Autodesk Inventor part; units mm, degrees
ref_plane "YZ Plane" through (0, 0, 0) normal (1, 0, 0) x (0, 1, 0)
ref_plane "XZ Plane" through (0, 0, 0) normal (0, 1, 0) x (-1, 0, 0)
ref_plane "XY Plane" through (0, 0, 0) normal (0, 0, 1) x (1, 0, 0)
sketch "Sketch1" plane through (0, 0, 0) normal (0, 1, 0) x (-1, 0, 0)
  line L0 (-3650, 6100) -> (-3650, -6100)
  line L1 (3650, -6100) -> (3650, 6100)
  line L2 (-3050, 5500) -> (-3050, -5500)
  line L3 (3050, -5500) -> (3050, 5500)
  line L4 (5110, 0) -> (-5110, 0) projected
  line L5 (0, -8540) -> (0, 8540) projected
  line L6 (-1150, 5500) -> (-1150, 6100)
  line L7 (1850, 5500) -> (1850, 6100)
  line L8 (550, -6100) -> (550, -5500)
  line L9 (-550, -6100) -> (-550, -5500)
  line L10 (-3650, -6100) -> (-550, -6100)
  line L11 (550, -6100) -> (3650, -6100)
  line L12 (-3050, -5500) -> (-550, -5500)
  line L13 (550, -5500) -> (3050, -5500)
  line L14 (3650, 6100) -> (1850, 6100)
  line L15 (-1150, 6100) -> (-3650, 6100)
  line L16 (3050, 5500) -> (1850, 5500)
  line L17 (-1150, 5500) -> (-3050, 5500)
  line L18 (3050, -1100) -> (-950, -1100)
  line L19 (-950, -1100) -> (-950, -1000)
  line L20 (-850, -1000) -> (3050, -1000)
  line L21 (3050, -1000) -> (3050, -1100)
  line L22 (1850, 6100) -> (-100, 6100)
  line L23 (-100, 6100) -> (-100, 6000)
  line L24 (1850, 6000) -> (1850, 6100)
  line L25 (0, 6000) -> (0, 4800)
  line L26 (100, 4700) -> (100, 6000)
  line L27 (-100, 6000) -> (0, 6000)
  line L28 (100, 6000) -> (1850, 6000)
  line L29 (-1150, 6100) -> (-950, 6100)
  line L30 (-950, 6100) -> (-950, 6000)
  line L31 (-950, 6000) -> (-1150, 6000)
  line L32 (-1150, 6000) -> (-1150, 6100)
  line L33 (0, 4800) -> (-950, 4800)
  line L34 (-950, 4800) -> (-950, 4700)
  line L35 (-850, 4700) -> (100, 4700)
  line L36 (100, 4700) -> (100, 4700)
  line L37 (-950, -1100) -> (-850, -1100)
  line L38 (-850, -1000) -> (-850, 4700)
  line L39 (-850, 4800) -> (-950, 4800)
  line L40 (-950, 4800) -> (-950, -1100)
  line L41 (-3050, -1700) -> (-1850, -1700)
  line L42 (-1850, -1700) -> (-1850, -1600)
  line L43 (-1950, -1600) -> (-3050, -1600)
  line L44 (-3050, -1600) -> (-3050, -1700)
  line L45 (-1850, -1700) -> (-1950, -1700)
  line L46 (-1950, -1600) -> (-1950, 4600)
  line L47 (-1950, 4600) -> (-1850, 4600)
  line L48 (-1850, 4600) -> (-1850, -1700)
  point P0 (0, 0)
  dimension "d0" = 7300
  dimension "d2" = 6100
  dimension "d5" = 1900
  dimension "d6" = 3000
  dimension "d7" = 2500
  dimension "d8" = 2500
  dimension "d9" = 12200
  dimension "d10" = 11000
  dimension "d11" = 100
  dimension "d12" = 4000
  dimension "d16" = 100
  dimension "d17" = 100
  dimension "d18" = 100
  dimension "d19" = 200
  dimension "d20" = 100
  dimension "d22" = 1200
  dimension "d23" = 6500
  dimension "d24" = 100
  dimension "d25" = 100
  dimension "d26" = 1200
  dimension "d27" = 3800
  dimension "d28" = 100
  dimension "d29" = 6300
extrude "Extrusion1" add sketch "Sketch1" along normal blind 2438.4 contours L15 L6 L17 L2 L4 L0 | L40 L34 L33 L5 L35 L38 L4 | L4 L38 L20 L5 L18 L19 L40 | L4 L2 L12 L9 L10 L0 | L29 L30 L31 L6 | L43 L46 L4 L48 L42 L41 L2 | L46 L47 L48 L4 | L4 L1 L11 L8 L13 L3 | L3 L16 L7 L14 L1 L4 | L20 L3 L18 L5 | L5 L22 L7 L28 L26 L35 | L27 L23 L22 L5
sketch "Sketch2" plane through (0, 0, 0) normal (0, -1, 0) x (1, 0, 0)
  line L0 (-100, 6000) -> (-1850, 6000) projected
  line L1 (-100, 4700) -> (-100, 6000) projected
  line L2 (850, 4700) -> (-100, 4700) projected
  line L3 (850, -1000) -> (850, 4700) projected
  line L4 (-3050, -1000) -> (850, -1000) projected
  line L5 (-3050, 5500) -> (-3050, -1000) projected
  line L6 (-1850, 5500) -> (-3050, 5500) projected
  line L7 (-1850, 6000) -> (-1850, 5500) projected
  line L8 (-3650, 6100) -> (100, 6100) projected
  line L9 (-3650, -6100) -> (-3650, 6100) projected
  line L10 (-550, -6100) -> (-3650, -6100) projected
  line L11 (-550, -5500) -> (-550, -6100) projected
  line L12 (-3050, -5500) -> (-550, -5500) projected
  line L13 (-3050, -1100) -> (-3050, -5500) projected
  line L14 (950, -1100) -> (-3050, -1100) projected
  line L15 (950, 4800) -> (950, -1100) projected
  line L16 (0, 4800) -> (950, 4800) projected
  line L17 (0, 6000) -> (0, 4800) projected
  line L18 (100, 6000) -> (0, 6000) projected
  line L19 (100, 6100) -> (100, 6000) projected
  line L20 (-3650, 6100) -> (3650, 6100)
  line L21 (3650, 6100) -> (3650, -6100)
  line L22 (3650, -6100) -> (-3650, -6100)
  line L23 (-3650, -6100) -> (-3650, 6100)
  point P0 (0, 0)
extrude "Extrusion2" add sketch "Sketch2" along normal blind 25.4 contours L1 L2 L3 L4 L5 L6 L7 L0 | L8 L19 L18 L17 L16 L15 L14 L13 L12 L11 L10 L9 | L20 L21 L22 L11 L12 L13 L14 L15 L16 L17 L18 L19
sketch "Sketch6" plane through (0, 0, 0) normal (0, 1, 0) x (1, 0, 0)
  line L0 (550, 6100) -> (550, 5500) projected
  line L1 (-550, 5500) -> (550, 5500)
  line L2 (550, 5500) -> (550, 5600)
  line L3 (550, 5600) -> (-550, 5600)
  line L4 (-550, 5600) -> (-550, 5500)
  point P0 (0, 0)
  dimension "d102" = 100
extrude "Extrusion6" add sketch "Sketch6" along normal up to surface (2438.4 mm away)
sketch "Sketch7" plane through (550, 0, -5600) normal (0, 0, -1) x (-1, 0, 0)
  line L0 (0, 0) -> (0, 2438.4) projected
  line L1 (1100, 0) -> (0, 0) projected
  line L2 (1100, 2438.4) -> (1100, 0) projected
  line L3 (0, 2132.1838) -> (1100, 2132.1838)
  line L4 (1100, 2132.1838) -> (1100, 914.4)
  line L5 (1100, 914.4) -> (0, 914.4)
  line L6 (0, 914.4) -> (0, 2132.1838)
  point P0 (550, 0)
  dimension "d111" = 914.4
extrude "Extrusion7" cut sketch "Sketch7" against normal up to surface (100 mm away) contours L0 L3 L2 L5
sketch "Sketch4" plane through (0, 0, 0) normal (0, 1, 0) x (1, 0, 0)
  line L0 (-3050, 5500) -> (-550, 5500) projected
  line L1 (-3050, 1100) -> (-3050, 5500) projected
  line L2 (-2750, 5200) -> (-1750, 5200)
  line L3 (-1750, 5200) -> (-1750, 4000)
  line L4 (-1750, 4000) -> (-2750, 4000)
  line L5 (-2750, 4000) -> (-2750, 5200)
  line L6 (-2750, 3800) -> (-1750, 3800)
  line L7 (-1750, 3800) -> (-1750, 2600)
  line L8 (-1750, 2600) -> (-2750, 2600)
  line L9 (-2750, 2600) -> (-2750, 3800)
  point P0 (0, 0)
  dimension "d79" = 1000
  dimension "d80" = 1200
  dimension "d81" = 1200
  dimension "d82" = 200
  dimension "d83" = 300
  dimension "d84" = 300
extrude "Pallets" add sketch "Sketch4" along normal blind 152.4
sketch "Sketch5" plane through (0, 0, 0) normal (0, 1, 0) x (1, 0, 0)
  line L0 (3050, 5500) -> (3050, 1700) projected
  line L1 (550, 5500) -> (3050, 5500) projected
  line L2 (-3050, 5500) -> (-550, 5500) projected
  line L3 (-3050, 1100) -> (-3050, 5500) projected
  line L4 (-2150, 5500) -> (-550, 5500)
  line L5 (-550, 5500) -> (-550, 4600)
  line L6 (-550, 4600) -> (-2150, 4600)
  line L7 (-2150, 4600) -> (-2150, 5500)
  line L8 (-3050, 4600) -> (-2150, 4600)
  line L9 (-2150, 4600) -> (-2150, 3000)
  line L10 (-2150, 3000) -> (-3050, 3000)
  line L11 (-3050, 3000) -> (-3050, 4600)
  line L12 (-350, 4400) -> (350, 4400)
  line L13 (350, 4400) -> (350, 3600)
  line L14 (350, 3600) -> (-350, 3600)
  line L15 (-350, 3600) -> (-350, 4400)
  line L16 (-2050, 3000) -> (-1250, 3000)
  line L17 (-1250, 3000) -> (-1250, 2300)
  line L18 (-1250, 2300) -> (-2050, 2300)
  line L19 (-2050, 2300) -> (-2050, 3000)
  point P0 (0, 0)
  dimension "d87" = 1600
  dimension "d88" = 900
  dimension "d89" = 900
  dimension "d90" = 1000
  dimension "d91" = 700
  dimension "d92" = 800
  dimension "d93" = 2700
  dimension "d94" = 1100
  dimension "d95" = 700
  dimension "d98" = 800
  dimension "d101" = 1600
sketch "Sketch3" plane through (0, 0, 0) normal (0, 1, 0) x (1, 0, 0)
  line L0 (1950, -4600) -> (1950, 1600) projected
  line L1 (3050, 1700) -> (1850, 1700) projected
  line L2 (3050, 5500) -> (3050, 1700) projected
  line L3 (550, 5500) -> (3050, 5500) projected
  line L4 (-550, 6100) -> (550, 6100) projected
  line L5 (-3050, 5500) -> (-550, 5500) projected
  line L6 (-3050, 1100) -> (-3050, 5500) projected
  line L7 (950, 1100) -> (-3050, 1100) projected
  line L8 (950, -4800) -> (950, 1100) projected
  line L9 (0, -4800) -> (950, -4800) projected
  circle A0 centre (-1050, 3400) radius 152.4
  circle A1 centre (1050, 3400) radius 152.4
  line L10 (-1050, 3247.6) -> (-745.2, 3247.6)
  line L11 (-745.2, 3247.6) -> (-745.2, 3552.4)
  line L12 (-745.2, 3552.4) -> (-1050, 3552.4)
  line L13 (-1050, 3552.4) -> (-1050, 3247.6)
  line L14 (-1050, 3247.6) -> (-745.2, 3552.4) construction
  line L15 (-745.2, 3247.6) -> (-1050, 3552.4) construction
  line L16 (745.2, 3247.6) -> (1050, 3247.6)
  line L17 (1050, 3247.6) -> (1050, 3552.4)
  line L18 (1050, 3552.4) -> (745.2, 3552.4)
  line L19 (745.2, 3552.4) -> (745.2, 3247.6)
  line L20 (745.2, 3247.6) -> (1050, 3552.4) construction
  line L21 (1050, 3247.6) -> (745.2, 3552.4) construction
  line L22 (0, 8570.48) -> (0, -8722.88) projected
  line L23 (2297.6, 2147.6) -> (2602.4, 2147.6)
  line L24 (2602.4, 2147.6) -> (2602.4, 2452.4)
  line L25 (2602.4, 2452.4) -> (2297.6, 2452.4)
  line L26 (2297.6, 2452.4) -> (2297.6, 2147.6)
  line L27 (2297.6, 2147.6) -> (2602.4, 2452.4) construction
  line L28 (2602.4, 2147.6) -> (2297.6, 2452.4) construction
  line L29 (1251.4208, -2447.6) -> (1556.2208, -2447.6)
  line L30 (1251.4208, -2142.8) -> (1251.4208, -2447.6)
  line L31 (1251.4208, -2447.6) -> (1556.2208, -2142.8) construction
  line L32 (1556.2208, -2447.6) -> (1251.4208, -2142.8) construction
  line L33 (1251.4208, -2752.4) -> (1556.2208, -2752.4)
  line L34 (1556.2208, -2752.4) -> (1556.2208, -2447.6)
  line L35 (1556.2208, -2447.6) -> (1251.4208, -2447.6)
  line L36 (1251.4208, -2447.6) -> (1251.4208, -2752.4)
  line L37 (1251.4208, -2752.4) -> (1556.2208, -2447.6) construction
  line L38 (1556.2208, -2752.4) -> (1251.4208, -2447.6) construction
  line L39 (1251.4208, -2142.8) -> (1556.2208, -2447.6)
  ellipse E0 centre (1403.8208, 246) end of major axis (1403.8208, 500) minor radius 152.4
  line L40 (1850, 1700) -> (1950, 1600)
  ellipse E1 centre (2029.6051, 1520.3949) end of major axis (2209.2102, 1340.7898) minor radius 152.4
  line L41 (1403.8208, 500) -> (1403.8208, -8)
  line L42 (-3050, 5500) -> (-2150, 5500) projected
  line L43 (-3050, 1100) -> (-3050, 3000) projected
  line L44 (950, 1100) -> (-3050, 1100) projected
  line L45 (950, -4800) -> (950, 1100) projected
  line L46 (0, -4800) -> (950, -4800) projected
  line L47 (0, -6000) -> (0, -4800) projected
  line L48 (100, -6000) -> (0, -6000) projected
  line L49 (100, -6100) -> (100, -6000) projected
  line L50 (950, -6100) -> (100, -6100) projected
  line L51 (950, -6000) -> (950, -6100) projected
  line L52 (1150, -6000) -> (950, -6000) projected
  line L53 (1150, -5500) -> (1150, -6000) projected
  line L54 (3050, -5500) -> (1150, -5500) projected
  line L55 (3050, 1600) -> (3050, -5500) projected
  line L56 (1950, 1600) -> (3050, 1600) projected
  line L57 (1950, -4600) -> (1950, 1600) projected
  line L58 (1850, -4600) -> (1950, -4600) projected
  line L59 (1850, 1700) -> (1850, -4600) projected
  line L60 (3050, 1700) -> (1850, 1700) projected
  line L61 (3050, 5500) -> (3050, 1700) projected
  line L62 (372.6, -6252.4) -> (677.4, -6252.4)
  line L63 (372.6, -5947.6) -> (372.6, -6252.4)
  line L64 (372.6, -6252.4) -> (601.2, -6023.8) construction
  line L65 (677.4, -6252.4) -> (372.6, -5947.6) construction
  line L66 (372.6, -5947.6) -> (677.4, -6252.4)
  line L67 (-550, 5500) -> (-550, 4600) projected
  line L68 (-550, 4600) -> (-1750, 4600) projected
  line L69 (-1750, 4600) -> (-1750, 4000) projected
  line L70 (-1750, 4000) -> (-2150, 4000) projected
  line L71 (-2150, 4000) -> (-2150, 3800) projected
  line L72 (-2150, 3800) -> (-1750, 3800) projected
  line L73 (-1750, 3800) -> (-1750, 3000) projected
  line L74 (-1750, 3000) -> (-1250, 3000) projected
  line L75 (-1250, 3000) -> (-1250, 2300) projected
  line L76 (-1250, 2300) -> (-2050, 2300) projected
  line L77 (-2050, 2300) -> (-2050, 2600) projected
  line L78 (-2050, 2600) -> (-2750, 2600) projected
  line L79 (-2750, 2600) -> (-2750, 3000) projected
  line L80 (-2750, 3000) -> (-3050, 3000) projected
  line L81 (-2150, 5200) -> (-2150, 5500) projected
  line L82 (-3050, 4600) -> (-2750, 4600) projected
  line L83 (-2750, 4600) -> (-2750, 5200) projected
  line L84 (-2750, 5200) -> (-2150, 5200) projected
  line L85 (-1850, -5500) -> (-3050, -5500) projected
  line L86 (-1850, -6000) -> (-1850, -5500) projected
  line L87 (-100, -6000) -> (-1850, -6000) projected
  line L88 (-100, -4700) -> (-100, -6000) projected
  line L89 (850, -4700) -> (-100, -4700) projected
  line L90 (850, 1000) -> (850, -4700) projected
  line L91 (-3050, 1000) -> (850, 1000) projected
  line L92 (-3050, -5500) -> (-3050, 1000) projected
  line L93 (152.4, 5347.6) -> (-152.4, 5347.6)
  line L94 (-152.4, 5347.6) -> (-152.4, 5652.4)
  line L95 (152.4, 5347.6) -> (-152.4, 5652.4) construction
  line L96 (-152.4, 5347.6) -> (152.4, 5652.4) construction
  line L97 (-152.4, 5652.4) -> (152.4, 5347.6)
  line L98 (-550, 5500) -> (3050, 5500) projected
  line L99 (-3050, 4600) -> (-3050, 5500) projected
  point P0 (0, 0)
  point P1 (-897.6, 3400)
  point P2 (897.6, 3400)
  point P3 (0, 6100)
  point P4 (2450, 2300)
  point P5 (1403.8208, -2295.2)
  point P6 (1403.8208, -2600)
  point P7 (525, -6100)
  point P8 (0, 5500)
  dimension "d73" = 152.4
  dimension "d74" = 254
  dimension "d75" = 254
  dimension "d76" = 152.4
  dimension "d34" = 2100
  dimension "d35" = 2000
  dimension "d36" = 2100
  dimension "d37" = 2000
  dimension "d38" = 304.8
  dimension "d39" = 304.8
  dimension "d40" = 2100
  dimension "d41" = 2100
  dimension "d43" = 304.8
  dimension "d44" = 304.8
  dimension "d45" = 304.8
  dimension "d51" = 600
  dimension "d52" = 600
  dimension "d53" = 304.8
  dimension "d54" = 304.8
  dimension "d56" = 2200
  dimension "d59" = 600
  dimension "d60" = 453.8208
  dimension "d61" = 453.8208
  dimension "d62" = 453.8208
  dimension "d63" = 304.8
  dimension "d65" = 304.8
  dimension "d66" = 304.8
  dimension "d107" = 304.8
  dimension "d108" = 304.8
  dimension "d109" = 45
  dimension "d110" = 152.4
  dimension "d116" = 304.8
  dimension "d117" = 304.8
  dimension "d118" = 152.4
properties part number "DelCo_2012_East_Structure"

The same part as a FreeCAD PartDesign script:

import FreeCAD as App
import Part
import Sketcher
Q = App.Units.Quantity


def add_polygon(sketch, points):
    """Adds a closed chain of lines whose ends are joined by coincident constraints."""
    first, n = sketch.GeometryCount, len(points)
    for a, b in zip(points, points[1:] + points[:1]):
        sketch.addGeometry(Part.LineSegment(App.Vector(*a, 0), App.Vector(*b, 0)), False)
    for i in range(n):
        sketch.addConstraint(Sketcher.Constraint("Coincident", first + i, 2, first + (i + 1) % n, 1))

doc = App.newDocument("Part")
body = doc.addObject("PartDesign::Body", "Body")
body.AllowCompound = True

sketch1 = body.newObject("Sketcher::SketchObject", "Sketch")
sketch1.AttachmentSupport = (doc.getObject("XZ_Plane"), [""])
sketch1.MapMode = "FlatFace"
add_polygon(sketch1, [(3650, 6100), (3650, -6100), (550, -6100), (550, -5500), (3050, -5500), (3050, -1700), (1850, -1700), (1850, 4600), (1950, 4600), (1950, -1600), (3050, -1600), (3050, 5500), (1150, 5500), (1150, 6000), (950, 6000), (950, 6100)])
add_polygon(sketch1, [(950, -1100), (-3050, -1100), (-3050, -5500), (-550, -5500), (-550, -6100), (-3650, -6100), (-3650, 6100), (100, 6100), (100, 6000), (0, 6000), (0, 4800), (950, 4800)])
add_polygon(sketch1, [(850, 4700), (-100, 4700), (-100, 6000), (-1850, 6000), (-1850, 5500), (-3050, 5500), (-3050, -1000), (850, -1000)])
sketch1.addConstraint(Sketcher.Constraint("Vertical", 0))
sketch1.addConstraint(Sketcher.Constraint("Horizontal", 1))
sketch1.addConstraint(Sketcher.Constraint("Vertical", 2))
sketch1.addConstraint(Sketcher.Constraint("Horizontal", 3))
sketch1.addConstraint(Sketcher.Constraint("Vertical", 4))
sketch1.addConstraint(Sketcher.Constraint("Horizontal", 5))
sketch1.addConstraint(Sketcher.Constraint("Vertical", 6))
sketch1.addConstraint(Sketcher.Constraint("Horizontal", 7))
sketch1.addConstraint(Sketcher.Constraint("Vertical", 8))
sketch1.addConstraint(Sketcher.Constraint("Horizontal", 9))
sketch1.addConstraint(Sketcher.Constraint("Vertical", 10))
sketch1.addConstraint(Sketcher.Constraint("Horizontal", 11))
sketch1.addConstraint(Sketcher.Constraint("Vertical", 12))
sketch1.addConstraint(Sketcher.Constraint("Horizontal", 13))
sketch1.addConstraint(Sketcher.Constraint("Vertical", 14))
sketch1.addConstraint(Sketcher.Constraint("Horizontal", 15))
sketch1.addConstraint(Sketcher.Constraint("Horizontal", 16))
sketch1.addConstraint(Sketcher.Constraint("Vertical", 17))
sketch1.addConstraint(Sketcher.Constraint("Horizontal", 18))
sketch1.addConstraint(Sketcher.Constraint("Vertical", 19))
sketch1.addConstraint(Sketcher.Constraint("Horizontal", 20))
sketch1.addConstraint(Sketcher.Constraint("Vertical", 21))
sketch1.addConstraint(Sketcher.Constraint("Horizontal", 22))
sketch1.addConstraint(Sketcher.Constraint("Vertical", 23))
sketch1.addConstraint(Sketcher.Constraint("Horizontal", 24))
sketch1.addConstraint(Sketcher.Constraint("Vertical", 25))
sketch1.addConstraint(Sketcher.Constraint("Horizontal", 26))
sketch1.addConstraint(Sketcher.Constraint("Vertical", 27))
sketch1.addConstraint(Sketcher.Constraint("Horizontal", 28))
sketch1.addConstraint(Sketcher.Constraint("Vertical", 29))
sketch1.addConstraint(Sketcher.Constraint("Horizontal", 30))
sketch1.addConstraint(Sketcher.Constraint("Vertical", 31))
sketch1.addConstraint(Sketcher.Constraint("Horizontal", 32))
sketch1.addConstraint(Sketcher.Constraint("Vertical", 33))
sketch1.addConstraint(Sketcher.Constraint("Horizontal", 34))
sketch1.addConstraint(Sketcher.Constraint("Vertical", 35))
sketch1.addConstraint(Sketcher.Constraint("Symmetric", 10, 2, 17, 2, -1, 1))
sketch1.addConstraint(Sketcher.Constraint("Symmetric", 15, 2, 20, 2, -1, 1))
sketch1.addConstraint(Sketcher.Constraint("Symmetric", 3, 2, 32, 2, -1, 1))
sketch1.addConstraint(Sketcher.Constraint("Symmetric", 3, 2, 17, 2, -2))
sketch1.addConstraint(Sketcher.Constraint("Symmetric", 1, 2, 19, 2, -2))
sketch1.addConstraint(Sketcher.Constraint("Symmetric", 23, 2, 29, 2, -2))
sketch1.addConstraint(Sketcher.Constraint("PointOnObject", 24, 2, -2))
sketch1.addConstraint(Sketcher.Constraint("Horizontal", 15, 2, 21, 2))
sketch1.addConstraint(Sketcher.Constraint("Horizontal", 13, 2, 23, 2))
sketch1.addConstraint(Sketcher.Constraint("Vertical", 14, 2, 26, 2))
sketch1.addConstraint(Sketcher.Constraint("Equal", 7, 24))
sketch1.addConstraint(Sketcher.Constraint("Equal", 26, 28))
sketch1.addConstraint(Sketcher.Constraint("Equal", 5, 32))
sketch1.addConstraint(Sketcher.Constraint("Equal", 24, 14))
sketch1.addConstraint(Sketcher.Constraint("Equal", 32, 25))
sketch1.addConstraint(Sketcher.Constraint("DistanceX", 3, 1, 3, 2, Q("2500 mm")))
sketch1.addConstraint(Sketcher.Constraint("DistanceX", 5, 2, 5, 1, Q("1200 mm")))
sketch1.addConstraint(Sketcher.Constraint("DistanceX", 7, 1, 7, 2, Q("100 mm")))
sketch1.addConstraint(Sketcher.Constraint("DistanceX", 11, 2, 11, 1, Q("1900 mm")))
sketch1.addConstraint(Sketcher.Constraint("DistanceX", 13, 2, 13, 1, Q("200 mm")))
sketch1.addConstraint(Sketcher.Constraint("DistanceX", 16, 2, 16, 1, Q("4000 mm")))
sketch1.addConstraint(Sketcher.Constraint("DistanceY", 0, 2, 0, 1, Q("12200 mm")))
sketch1.addConstraint(Sketcher.Constraint("DistanceY", 4, 1, 4, 2, Q("3800 mm")))
sketch1.addConstraint(Sketcher.Constraint("DistanceY", 6, 1, 6, 2, Q("6300 mm")))
sketch1.addConstraint(Sketcher.Constraint("DistanceY", 33, 2, 33, 1, Q("6500 mm")))
sketch1.addConstraint(Sketcher.Constraint("DistanceY", 5, 2, 8, 2, Q("100 mm")))
sketch1.addConstraint(Sketcher.Constraint("DistanceX", 12, 2, 15, 2, Q("2500 mm")))
sketch1.addConstraint(Sketcher.Constraint("DistanceY", 6, 2, 26, 2, Q("200 mm")))
sketch1.addConstraint(Sketcher.Constraint("DistanceY", 28, 2, 25, 2, Q("100 mm")))
sketch1.addConstraint(Sketcher.Constraint("DistanceY", 16, 2, 33, 2, Q("100 mm")))
pad1 = body.newObject("PartDesign::Pad", "Pad")
pad1.Profile = sketch1
pad1.Length = 2438.4
pad1.Reversed = True

sketch2 = body.newObject("Sketcher::SketchObject", "Sketch001")
sketch2.AttachmentSupport = (doc.getObject("XZ_Plane"), [""])
sketch2.MapMode = "FlatFace"
add_polygon(sketch2, [(-3650, 6100), (-3650, -6100), (3650, -6100), (3650, 6100)])
sketch2.addConstraint(Sketcher.Constraint("Vertical", 0))
sketch2.addConstraint(Sketcher.Constraint("Horizontal", 1))
sketch2.addConstraint(Sketcher.Constraint("Vertical", 2))
sketch2.addConstraint(Sketcher.Constraint("Horizontal", 3))
sketch2.addConstraint(Sketcher.Constraint("Symmetric", 0, 2, 2, 2, -1, 1))
sketch2.addConstraint(Sketcher.Constraint("DistanceX", 1, 1, 1, 2, Q("7300 mm")))
sketch2.addConstraint(Sketcher.Constraint("DistanceY", 0, 2, 0, 1, Q("12200 mm")))
pad2 = body.newObject("PartDesign::Pad", "Pad001")
pad2.Profile = sketch2
pad2.Length = 25.4

sketch3 = body.newObject("Sketcher::SketchObject", "Sketch002")
sketch3.AttachmentSupport = (doc.getObject("XZ_Plane"), [""])
sketch3.MapMode = "FlatFace"
add_polygon(sketch3, [(550, -5500), (550, -5600), (-550, -5600), (-550, -5500)])
sketch3.addConstraint(Sketcher.Constraint("Vertical", 0))
sketch3.addConstraint(Sketcher.Constraint("Horizontal", 1))
sketch3.addConstraint(Sketcher.Constraint("Vertical", 2))
sketch3.addConstraint(Sketcher.Constraint("Horizontal", 3))
sketch3.addConstraint(Sketcher.Constraint("DistanceY", 0, 2, 0, 1, Q("100 mm")))
sketch3.addConstraint(Sketcher.Constraint("DistanceX", 1, 2, 1, 1, Q("1100 mm")))
sketch3.addConstraint(Sketcher.Constraint("DistanceX", -1, 1, 0, 2, Q("550 mm")))
sketch3.addConstraint(Sketcher.Constraint("DistanceY", 0, 2, -1, 1, Q("5600 mm")))
pad3 = body.newObject("PartDesign::Pad", "Pad002")
pad3.Profile = sketch3
pad3.Length = 2438.4
pad3.Reversed = True

sketch4 = body.newObject("Sketcher::SketchObject", "Sketch003")
sketch4.AttachmentSupport = (doc.getObject("XY_Plane"), [""])
sketch4.MapMode = "FlatFace"
sketch4.AttachmentOffset = App.Placement(App.Vector(0, 0, -5600), App.Rotation())
add_polygon(sketch4, [(550, 2132), (550, 914), (-550, 914), (-550, 2132)])
sketch4.addConstraint(Sketcher.Constraint("Vertical", 0))
sketch4.addConstraint(Sketcher.Constraint("Horizontal", 1))
sketch4.addConstraint(Sketcher.Constraint("Vertical", 2))
sketch4.addConstraint(Sketcher.Constraint("Horizontal", 3))
sketch4.addConstraint(Sketcher.Constraint("DistanceY", -1, 1, 0, 2, Q("914.4 mm")))
sketch4.addConstraint(Sketcher.Constraint("DistanceX", 1, 2, 1, 1, Q("1100 mm")))
sketch4.addConstraint(Sketcher.Constraint("DistanceX", -1, 1, 0, 2, Q("550 mm")))
sketch4.addConstraint(Sketcher.Constraint("DistanceY", 0, 2, 0, 1, Q("1217.7838 mm")))
pocket1 = body.newObject("PartDesign::Pocket", "Pocket")
pocket1.Profile = sketch4
pocket1.Length = 100
pocket1.Reversed = True

sketch5 = body.newObject("Sketcher::SketchObject", "Sketch004")
sketch5.AttachmentSupport = (doc.getObject("XZ_Plane"), [""])
sketch5.MapMode = "FlatFace"
add_polygon(sketch5, [(-1750, -5200), (-2750, -5200), (-2750, -4000), (-1750, -4000)])
add_polygon(sketch5, [(-1750, -3800), (-2750, -3800), (-2750, -2600), (-1750, -2600)])
sketch5.addConstraint(Sketcher.Constraint("Horizontal", 0))
sketch5.addConstraint(Sketcher.Constraint("Vertical", 1))
sketch5.addConstraint(Sketcher.Constraint("Horizontal", 2))
sketch5.addConstraint(Sketcher.Constraint("Vertical", 3))
sketch5.addConstraint(Sketcher.Constraint("Horizontal", 4))
sketch5.addConstraint(Sketcher.Constraint("Vertical", 5))
sketch5.addConstraint(Sketcher.Constraint("Horizontal", 6))
sketch5.addConstraint(Sketcher.Constraint("Vertical", 7))
sketch5.addConstraint(Sketcher.Constraint("Vertical", 1, 2, 4, 2))
sketch5.addConstraint(Sketcher.Constraint("Vertical", 3, 2, 6, 2))
sketch5.addConstraint(Sketcher.Constraint("Equal", 3, 5))
sketch5.addConstraint(Sketcher.Constraint("DistanceX", 0, 2, 0, 1, Q("1000 mm")))
sketch5.addConstraint(Sketcher.Constraint("DistanceY", 1, 1, 1, 2, Q("1200 mm")))
sketch5.addConstraint(Sketcher.Constraint("DistanceY", 1, 2, 4, 2, Q("200 mm")))
sketch5.addConstraint(Sketcher.Constraint("DistanceX", 0, 2, -1, 1, Q("2750 mm")))
sketch5.addConstraint(Sketcher.Constraint("DistanceY", 0, 2, -1, 1, Q("5200 mm")))
pad4 = body.newObject("PartDesign::Pad", "Pad003")
pad4.Profile = sketch5
pad4.Length = 152.4
pad4.Reversed = True

doc.recompute()
